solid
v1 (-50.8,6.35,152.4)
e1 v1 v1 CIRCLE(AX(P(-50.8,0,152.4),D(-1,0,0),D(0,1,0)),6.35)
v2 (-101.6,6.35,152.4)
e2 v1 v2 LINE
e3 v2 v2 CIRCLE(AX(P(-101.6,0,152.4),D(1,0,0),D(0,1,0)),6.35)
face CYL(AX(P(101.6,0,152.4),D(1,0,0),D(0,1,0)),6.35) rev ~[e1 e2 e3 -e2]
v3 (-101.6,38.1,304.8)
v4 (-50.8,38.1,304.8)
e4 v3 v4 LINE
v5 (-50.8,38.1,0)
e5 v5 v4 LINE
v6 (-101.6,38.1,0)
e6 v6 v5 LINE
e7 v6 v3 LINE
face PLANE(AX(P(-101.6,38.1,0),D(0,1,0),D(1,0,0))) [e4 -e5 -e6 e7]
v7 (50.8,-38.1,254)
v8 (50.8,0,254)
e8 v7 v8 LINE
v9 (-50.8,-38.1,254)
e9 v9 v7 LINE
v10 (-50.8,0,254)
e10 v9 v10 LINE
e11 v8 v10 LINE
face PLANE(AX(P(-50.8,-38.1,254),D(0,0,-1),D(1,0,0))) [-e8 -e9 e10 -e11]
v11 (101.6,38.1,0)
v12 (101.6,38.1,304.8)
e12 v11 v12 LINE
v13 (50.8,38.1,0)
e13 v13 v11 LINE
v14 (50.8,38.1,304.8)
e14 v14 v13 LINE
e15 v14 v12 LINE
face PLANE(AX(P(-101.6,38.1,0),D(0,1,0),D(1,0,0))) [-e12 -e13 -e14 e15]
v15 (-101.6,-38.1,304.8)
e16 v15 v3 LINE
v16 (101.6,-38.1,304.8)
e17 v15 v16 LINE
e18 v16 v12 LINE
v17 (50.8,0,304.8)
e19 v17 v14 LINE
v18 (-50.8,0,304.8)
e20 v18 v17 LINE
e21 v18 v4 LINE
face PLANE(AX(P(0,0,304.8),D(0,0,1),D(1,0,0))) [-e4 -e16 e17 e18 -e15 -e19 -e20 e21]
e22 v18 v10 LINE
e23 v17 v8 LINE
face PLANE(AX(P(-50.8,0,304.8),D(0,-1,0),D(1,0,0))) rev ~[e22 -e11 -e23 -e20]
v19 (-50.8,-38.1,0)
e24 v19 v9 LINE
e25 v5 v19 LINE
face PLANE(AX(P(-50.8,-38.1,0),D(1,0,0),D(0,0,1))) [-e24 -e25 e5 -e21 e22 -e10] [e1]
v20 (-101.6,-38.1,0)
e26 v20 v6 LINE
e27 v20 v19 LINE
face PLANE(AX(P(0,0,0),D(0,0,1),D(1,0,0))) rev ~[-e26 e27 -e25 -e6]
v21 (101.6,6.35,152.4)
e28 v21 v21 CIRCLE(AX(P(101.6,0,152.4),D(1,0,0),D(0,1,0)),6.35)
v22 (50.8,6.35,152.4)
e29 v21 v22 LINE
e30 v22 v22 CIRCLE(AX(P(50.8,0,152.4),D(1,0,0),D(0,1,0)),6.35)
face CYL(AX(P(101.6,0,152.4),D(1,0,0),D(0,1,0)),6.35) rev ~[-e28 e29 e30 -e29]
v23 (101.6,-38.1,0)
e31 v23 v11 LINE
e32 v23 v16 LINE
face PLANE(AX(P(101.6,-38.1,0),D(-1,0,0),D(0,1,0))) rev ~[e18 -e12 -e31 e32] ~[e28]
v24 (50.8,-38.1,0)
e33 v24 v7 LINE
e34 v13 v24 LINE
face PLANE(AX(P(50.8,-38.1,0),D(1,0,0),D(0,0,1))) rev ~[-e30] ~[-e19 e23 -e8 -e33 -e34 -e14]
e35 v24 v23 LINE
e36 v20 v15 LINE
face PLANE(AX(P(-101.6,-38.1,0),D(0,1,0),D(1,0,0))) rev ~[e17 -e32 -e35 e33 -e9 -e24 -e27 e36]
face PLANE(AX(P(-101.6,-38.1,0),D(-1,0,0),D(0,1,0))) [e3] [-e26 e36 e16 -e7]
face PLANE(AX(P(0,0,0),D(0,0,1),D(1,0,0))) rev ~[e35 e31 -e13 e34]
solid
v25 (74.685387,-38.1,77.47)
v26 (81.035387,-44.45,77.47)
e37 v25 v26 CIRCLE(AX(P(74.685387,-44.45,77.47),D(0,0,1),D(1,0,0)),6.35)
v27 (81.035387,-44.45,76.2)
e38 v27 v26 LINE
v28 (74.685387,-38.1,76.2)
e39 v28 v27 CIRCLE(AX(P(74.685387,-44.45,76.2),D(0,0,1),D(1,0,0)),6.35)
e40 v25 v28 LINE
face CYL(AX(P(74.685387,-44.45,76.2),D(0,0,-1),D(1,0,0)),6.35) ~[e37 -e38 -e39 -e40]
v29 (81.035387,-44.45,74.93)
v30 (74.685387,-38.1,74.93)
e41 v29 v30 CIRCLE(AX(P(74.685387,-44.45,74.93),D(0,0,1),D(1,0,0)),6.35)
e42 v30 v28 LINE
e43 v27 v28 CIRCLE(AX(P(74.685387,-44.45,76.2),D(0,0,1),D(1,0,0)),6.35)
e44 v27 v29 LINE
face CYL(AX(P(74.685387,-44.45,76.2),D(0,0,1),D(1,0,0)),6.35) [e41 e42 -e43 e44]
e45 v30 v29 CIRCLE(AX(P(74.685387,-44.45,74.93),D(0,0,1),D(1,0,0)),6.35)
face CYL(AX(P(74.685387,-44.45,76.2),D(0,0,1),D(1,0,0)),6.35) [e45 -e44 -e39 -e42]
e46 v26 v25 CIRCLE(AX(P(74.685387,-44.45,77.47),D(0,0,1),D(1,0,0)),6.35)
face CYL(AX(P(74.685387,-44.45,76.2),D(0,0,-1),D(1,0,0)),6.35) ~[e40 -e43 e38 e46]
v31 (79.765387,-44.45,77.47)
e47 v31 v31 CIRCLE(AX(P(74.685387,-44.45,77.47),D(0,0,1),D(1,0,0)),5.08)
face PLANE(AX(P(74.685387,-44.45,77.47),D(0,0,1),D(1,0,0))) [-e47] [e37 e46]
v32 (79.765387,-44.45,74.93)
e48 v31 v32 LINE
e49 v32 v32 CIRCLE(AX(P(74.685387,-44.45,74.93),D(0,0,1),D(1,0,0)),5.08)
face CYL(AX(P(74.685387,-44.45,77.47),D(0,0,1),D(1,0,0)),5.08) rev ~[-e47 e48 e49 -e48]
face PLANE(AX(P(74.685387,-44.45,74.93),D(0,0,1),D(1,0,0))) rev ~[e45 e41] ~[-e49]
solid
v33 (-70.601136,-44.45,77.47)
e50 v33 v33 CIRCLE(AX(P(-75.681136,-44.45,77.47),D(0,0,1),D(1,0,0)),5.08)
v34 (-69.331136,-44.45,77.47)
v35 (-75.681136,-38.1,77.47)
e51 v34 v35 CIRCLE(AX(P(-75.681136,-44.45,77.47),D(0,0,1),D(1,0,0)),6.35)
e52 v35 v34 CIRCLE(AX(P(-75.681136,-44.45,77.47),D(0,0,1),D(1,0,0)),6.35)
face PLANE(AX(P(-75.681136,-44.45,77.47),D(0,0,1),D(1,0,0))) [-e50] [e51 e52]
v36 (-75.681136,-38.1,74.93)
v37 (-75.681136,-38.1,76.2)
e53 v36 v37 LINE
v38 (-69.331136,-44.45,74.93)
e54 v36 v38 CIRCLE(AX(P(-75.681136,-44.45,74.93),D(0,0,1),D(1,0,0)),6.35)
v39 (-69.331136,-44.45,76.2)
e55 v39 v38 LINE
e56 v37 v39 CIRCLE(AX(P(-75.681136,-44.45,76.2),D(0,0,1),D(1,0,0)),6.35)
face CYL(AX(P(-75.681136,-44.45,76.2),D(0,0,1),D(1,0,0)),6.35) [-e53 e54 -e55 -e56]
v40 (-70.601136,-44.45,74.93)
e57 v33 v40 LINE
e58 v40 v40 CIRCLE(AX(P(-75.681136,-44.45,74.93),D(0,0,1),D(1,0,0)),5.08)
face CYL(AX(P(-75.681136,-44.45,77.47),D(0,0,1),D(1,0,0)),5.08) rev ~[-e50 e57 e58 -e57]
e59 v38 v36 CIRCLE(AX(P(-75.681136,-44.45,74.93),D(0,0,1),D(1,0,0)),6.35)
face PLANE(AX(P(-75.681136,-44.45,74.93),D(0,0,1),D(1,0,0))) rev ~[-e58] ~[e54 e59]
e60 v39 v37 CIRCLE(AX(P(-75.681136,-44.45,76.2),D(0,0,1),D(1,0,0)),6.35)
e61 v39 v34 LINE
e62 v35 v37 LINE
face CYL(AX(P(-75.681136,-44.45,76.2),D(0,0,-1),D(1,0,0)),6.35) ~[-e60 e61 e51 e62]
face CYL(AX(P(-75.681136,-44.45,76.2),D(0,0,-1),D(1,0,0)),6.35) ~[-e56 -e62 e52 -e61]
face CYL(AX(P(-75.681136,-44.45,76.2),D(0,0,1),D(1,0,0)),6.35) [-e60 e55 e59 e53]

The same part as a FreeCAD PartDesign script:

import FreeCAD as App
import Part
import Sketcher
from FreeCAD import Vector
Q = App.Units.Quantity

doc = App.newDocument("Part")
body = doc.addObject("PartDesign::Body", "Body")
body.AllowCompound = True

# Sketch on XY plane
sketch1 = doc.addObject("Sketcher::SketchObject", "Sketch")
body.addObject(sketch1)
sketch1.AttachmentSupport = (doc.XY_Plane, [""])
sketch1.MapMode = "FlatFace"
sketch1.addGeometry([
    Part.LineSegment(Vector(-102, 38, 0), Vector(-102, -38, 0)),
    Part.LineSegment(Vector(-102, -38, 0), Vector(102, -38, 0)),
    Part.LineSegment(Vector(102, -38, 0), Vector(102, 38, 0)),
    Part.LineSegment(Vector(102, 38, 0), Vector(-102, 38, 0)),
], False)
sketch1.addConstraint([
    Sketcher.Constraint("Coincident", 0, 2, 1, 1),
    Sketcher.Constraint("Coincident", 1, 2, 2, 1),
    Sketcher.Constraint("Coincident", 2, 2, 3, 1),
    Sketcher.Constraint("Coincident", 3, 2, 0, 1),
    Sketcher.Constraint("Vertical", 0),
    Sketcher.Constraint("Horizontal", 1),
    Sketcher.Constraint("Vertical", 2),
    Sketcher.Constraint("Horizontal", 3),
    Sketcher.Constraint("Symmetric", 0, 2, 2, 2, -1, 1),
    Sketcher.Constraint("DistanceX", 1, 1, 1, 2, Q("8 in")),
    Sketcher.Constraint("DistanceY", 0, 2, 0, 1, Q("3 in")),
])
pad1 = doc.addObject("PartDesign::Pad", "Pad")
body.addObject(pad1)
pad1.Profile = sketch1
pad1.Length = Q("12 in")

# Sketch on XZ plane
sketch2 = doc.addObject("Sketcher::SketchObject", "Sketch001")
body.addObject(sketch2)
sketch2.AttachmentSupport = (doc.XZ_Plane, [""])
sketch2.MapMode = "FlatFace"
sketch2.AttachmentOffset = App.Placement(Vector(0, 0, 1.5 * 25.4), App.Rotation())
sketch2.addGeometry([
    Part.LineSegment(Vector(-51, 254, 0), Vector(-51, 0, 0)),
    Part.LineSegment(Vector(-51, 0, 0), Vector(51, 0, 0)),
    Part.LineSegment(Vector(51, 0, 0), Vector(51, 254, 0)),
    Part.LineSegment(Vector(51, 254, 0), Vector(-51, 254, 0)),
], False)
sketch2.addConstraint([
    Sketcher.Constraint("Coincident", 0, 2, 1, 1),
    Sketcher.Constraint("Coincident", 1, 2, 2, 1),
    Sketcher.Constraint("Coincident", 2, 2, 3, 1),
    Sketcher.Constraint("Coincident", 3, 2, 0, 1),
    Sketcher.Constraint("Vertical", 0),
    Sketcher.Constraint("Horizontal", 1),
    Sketcher.Constraint("Vertical", 2),
    Sketcher.Constraint("Horizontal", 3),
    Sketcher.Constraint("Symmetric", 0, 2, 1, 2, -1, 1),
    Sketcher.Constraint("DistanceX", 1, 1, 1, 2, Q("4 in")),
    Sketcher.Constraint("DistanceY", 0, 2, 0, 1, Q("10 in")),
])
pocket1 = doc.addObject("PartDesign::Pocket", "Pocket")
body.addObject(pocket1)
pocket1.Profile = sketch2
pocket1.Type = "ThroughAll"

# Sketch on YZ plane
sketch3 = doc.addObject("Sketcher::SketchObject", "Sketch002")
body.addObject(sketch3)
sketch3.AttachmentSupport = (doc.YZ_Plane, [""])
sketch3.MapMode = "FlatFace"
sketch3.AttachmentOffset = App.Placement(Vector(0, 0, 4 * 25.4), App.Rotation())
sketch3.addGeometry(Part.Circle(Vector(0, 152, 0), Vector(0, 0, 1), 6), False)
sketch3.addConstraint([
    Sketcher.Constraint("PointOnObject", 0, 3, -2),
    Sketcher.Constraint("Diameter", 0, Q("0.5 in")),
    Sketcher.Constraint("DistanceY", -1, 1, 0, 3, Q("6 in")),
])
pocket2 = doc.addObject("PartDesign::Pocket", "Pocket001")
body.addObject(pocket2)
pocket2.Profile = sketch3
pocket2.Type = "ThroughAll"

# Sketch on XY plane
sketch4 = doc.addObject("Sketcher::SketchObject", "Sketch003")
body.addObject(sketch4)
sketch4.AttachmentSupport = (doc.XY_Plane, [""])
sketch4.MapMode = "FlatFace"
sketch4.AttachmentOffset = App.Placement(Vector(0, 0, 3 * 25.4), App.Rotation())
sketch4.addGeometry([
    Part.Circle(Vector(75, -44, 0), Vector(0, 0, 1), 6),
    Part.Circle(Vector(-76, -44, 0), Vector(0, 0, 1), 6),
], False)
sketch4.addConstraint([
    Sketcher.Constraint("Equal", 0, 1),
    Sketcher.Constraint("Horizontal", 0, 3, 1, 3),
    Sketcher.Constraint("Diameter", 0, Q("0.5 in")),
    Sketcher.Constraint("DistanceY", 0, 3, -1, 1, Q("1.75 in")),
    Sketcher.Constraint("DistanceX", -1, 1, 0, 3, Q("74.685387 mm")),
    Sketcher.Constraint("DistanceX", 1, 3, -1, 1, Q("75.681136 mm")),
])
pad2 = doc.addObject("PartDesign::Pad", "Pad001")
body.addObject(pad2)
pad2.Profile = sketch4
pad2.Type = "TwoLengths"
pad2.Length = Q("0.05 in")
pad2.Length2 = Q("0.05 in")

# Sketch on XY plane
sketch5 = doc.addObject("Sketcher::SketchObject", "Sketch004")
body.addObject(sketch5)
sketch5.AttachmentSupport = (doc.XY_Plane, [""])
sketch5.MapMode = "FlatFace"
sketch5.AttachmentOffset = App.Placement(Vector(0, 0, 3.05 * 25.4), App.Rotation())
sketch5.addGeometry([
    Part.Circle(Vector(75, -44, 0), Vector(0, 0, 1), 5),
    Part.Circle(Vector(-76, -44, 0), Vector(0, 0, 1), 5),
], False)
sketch5.addConstraint([
    Sketcher.Constraint("Equal", 0, 1),
    Sketcher.Constraint("Horizontal", 0, 3, 1, 3),
    Sketcher.Constraint("Diameter", 0, Q("0.4 in")),
    Sketcher.Constraint("DistanceY", 0, 3, -1, 1, Q("1.75 in")),
    Sketcher.Constraint("DistanceX", -1, 1, 0, 3, Q("74.685387 mm")),
    Sketcher.Constraint("DistanceX", 1, 3, -1, 1, Q("75.681136 mm")),
])
pocket3 = doc.addObject("PartDesign::Pocket", "Pocket002")
body.addObject(pocket3)
pocket3.Profile = sketch5
pocket3.Type = "ThroughAll"

# Sketch on XY plane
sketch6 = doc.addObject("Sketcher::SketchObject", "Sketch005")
body.addObject(sketch6)
sketch6.AttachmentSupport = (doc.XY_Plane, [""])
sketch6.MapMode = "FlatFace"
sketch6.AttachmentOffset = App.Placement(Vector(0, 0, 12 * 25.4), App.Rotation())
sketch6.addGeometry([
    Part.LineSegment(Vector(-51, 38, 0), Vector(-51, 0, 0)),
    Part.LineSegment(Vector(-51, 0, 0), Vector(51, 0, 0)),
    Part.LineSegment(Vector(51, 0, 0), Vector(51, 38, 0)),
    Part.LineSegment(Vector(51, 38, 0), Vector(-51, 38, 0)),
], False)
sketch6.addConstraint([
    Sketcher.Constraint("Coincident", 0, 2, 1, 1),
    Sketcher.Constraint("Coincident", 1, 2, 2, 1),
    Sketcher.Constraint("Coincident", 2, 2, 3, 1),
    Sketcher.Constraint("Coincident", 3, 2, 0, 1),
    Sketcher.Constraint("Vertical", 0),
    Sketcher.Constraint("Horizontal", 1),
    Sketcher.Constraint("Vertical", 2),
    Sketcher.Constraint("Horizontal", 3),
    Sketcher.Constraint("Symmetric", 0, 2, 1, 2, -1, 1),
    Sketcher.Constraint("DistanceX", 1, 1, 1, 2, Q("4 in")),
    Sketcher.Constraint("DistanceY", 0, 2, 0, 1, Q("1.5 in")),
])
pocket4 = doc.addObject("PartDesign::Pocket", "Pocket003")
body.addObject(pocket4)
pocket4.Profile = sketch6
pocket4.Type = "ThroughAll"

doc.recompute()
